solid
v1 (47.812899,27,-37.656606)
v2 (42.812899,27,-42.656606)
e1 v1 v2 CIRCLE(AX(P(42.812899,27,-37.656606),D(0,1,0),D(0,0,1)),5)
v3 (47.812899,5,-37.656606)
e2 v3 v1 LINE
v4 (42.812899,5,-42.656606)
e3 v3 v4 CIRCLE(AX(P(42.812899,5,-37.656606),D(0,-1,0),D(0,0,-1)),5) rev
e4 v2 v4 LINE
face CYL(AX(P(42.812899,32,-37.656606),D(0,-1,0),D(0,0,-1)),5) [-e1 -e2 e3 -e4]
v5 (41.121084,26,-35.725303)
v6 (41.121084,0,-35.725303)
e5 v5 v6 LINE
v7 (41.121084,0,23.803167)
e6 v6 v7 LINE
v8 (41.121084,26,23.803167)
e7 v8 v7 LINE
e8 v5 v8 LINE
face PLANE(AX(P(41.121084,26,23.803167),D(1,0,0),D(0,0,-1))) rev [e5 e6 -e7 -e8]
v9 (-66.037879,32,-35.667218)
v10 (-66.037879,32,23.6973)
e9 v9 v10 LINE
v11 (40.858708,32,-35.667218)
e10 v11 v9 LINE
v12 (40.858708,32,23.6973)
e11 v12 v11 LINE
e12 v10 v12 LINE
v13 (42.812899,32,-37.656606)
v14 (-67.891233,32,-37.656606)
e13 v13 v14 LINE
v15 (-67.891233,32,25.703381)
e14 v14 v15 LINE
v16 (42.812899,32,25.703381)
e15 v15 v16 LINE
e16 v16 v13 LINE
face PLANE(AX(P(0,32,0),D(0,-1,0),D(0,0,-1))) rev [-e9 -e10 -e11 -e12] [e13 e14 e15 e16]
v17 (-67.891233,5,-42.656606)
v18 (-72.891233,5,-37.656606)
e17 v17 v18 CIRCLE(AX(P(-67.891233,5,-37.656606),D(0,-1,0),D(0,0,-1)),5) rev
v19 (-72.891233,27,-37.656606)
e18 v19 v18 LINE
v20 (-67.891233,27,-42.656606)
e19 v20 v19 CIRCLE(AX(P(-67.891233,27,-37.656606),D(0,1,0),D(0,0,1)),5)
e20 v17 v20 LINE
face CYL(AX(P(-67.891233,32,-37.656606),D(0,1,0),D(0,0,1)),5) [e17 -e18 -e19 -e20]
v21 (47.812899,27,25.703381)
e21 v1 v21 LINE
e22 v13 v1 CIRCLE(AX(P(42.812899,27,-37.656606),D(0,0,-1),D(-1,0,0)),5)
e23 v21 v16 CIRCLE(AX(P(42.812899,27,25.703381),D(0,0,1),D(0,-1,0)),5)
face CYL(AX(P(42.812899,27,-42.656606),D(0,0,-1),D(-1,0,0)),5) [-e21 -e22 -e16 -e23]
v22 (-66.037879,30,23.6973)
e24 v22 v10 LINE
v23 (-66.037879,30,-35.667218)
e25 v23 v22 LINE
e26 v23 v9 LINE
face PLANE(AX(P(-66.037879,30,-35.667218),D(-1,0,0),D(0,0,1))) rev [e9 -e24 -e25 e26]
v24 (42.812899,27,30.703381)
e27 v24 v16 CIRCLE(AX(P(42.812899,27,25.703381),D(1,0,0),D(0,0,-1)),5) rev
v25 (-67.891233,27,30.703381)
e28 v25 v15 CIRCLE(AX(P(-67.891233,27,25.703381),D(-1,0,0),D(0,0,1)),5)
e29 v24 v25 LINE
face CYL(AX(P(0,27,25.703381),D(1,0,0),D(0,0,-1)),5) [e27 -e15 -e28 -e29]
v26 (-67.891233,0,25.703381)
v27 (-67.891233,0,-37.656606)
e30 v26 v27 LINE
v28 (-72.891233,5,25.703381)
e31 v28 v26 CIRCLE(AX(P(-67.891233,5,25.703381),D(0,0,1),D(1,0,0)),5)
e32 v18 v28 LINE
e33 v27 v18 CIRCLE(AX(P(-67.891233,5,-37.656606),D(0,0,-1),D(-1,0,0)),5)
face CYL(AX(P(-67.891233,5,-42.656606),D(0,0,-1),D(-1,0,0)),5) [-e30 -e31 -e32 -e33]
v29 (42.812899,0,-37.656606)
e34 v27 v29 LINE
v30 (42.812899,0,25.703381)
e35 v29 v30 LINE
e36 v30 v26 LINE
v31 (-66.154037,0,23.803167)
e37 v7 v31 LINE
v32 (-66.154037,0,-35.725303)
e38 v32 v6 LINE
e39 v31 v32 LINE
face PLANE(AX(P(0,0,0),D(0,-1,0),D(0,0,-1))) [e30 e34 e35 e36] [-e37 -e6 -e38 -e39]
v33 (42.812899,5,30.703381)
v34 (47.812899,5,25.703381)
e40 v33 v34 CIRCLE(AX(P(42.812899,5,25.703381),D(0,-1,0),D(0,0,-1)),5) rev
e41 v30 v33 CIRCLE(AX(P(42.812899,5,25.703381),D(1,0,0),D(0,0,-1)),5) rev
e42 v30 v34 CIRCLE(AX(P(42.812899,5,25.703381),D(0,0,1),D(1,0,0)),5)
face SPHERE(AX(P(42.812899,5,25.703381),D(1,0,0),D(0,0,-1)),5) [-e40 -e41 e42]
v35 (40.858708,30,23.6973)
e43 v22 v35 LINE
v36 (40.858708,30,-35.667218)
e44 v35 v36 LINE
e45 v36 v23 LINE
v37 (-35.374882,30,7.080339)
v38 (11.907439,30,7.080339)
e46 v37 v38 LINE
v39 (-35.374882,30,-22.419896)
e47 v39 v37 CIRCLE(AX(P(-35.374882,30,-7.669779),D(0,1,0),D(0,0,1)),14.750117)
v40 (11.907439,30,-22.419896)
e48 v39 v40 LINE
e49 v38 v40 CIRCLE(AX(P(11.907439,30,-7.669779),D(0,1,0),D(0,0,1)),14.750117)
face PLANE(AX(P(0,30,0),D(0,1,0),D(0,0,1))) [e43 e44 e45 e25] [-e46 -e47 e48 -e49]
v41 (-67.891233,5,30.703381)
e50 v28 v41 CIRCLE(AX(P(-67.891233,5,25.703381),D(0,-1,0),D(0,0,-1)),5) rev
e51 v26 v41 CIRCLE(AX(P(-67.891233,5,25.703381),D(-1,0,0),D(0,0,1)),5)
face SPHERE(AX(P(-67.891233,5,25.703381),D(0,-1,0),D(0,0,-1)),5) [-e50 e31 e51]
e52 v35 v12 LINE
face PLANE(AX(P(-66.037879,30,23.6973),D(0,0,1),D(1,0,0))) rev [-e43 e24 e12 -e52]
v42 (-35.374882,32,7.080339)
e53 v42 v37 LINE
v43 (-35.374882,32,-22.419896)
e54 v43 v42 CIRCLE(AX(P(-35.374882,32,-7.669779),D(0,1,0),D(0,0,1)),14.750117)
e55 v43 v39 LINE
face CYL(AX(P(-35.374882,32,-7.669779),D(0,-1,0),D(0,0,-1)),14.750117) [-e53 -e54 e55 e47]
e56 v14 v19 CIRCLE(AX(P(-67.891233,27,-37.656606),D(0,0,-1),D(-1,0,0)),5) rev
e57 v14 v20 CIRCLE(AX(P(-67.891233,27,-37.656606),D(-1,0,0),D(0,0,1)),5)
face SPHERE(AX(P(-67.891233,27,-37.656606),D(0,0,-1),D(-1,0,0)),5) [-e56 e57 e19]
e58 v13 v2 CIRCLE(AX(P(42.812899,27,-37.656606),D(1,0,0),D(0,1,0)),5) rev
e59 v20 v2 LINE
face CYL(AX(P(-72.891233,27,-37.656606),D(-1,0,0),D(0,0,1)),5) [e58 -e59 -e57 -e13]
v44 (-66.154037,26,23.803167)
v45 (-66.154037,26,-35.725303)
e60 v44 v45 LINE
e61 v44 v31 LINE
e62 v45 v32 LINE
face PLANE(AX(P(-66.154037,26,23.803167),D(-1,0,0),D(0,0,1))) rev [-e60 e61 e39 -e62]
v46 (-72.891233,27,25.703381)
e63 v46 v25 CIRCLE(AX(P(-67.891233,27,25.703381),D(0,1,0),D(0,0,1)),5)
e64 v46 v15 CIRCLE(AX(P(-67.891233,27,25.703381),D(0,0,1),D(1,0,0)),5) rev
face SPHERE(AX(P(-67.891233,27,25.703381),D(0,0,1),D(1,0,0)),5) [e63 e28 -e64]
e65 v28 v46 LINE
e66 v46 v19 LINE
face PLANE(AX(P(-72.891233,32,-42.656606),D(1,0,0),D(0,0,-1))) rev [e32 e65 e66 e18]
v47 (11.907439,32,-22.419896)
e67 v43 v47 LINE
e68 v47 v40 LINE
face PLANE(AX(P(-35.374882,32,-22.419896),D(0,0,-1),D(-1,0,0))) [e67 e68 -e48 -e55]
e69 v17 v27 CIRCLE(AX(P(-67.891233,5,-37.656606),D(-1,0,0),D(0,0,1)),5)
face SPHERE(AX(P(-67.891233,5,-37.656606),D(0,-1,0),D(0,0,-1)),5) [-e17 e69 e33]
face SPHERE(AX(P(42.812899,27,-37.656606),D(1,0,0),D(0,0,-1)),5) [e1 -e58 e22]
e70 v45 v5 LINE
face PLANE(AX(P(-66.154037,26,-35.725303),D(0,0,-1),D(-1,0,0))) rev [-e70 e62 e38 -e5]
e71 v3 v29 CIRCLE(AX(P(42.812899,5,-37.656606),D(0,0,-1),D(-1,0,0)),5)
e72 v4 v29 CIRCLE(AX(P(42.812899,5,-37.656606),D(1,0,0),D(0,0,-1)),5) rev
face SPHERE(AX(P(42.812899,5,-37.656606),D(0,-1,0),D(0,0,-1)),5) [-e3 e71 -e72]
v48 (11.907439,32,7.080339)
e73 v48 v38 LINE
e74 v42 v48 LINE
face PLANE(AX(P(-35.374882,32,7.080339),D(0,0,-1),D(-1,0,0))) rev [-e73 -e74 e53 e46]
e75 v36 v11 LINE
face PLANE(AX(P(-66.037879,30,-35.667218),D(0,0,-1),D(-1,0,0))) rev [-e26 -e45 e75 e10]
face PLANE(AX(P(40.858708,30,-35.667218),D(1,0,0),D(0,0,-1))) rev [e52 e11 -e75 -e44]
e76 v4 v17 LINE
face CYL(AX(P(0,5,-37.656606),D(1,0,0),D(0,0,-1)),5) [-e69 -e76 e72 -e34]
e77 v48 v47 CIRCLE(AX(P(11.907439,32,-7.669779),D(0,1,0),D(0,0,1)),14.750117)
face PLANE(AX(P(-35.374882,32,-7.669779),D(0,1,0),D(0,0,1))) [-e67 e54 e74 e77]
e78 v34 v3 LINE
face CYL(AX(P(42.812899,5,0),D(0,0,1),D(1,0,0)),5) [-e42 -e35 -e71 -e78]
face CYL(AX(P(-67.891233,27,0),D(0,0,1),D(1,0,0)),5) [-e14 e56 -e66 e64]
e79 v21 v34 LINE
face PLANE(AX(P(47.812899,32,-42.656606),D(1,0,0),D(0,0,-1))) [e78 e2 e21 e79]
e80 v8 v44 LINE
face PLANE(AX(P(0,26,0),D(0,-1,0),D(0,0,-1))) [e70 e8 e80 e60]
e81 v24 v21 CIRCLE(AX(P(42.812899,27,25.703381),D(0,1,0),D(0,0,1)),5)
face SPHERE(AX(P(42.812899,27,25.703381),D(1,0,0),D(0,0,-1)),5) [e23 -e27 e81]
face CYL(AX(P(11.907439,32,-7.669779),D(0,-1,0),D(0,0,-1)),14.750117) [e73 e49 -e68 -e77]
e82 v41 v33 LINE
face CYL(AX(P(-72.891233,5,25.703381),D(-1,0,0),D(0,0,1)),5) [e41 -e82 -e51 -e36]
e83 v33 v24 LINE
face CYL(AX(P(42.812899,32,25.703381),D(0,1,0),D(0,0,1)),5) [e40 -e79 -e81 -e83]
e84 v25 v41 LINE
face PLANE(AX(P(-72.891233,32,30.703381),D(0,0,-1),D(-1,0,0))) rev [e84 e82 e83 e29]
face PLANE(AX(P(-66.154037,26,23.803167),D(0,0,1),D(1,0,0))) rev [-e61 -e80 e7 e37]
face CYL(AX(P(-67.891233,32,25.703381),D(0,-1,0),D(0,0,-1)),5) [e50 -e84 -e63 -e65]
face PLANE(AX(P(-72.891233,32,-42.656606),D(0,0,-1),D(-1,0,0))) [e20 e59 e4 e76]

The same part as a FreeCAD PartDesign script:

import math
import FreeCAD as App
import Part
import Sketcher
from FreeCAD import Vector


def add_polygon(sketch, points):
    """Adds a closed chain of lines whose ends are joined by coincident constraints."""
    first, n = sketch.GeometryCount, len(points)
    for a, b in zip(points, points[1:] + points[:1]):
        sketch.addGeometry(Part.LineSegment(App.Vector(*a, 0), App.Vector(*b, 0)), False)
    for i in range(n):
        sketch.addConstraint(Sketcher.Constraint("Coincident", first + i, 2, first + (i + 1) % n, 1))

doc = App.newDocument("Part")
params = doc.addObject("Spreadsheet::Sheet", "Params")
for row, (alias, value) in enumerate([
    ("pad1_length", "32 mm"),
    ("fillet_radius", "5 mm"),
    ("pad2_length", "1 mm"),
    ("pocket1_length", "2 mm"),
    ("pad3_length", "2 mm"),
    ("pocket2_length", "26 mm"),
], start=1):
    params.set(f"A{row}", alias)
    params.set(f"B{row}", "=" + value)
    params.setAlias(f"B{row}", alias)

body = doc.addObject("PartDesign::Body", "Body")

# Sketch on XZ plane
sketch1 = body.newObject("Sketcher::SketchObject", "Sketch")
sketch1.AttachmentSupport = (doc.getObject("XZ_Plane"), [""])
sketch1.MapMode = "FlatFace"
add_polygon(sketch1, [(-73, -43), (-73, 31), (48, 31), (48, -43)])  # lines 0-3
sketch1.addConstraint([
    Sketcher.Constraint("Vertical", 0),
    Sketcher.Constraint("Horizontal", 1),
    Sketcher.Constraint("Vertical", 2),
    Sketcher.Constraint("Horizontal", 3),
    Sketcher.Constraint("DistanceX", 1, 1, 1, 2, 120.704132),
    Sketcher.Constraint("DistanceX", -1, 1, 1, 2, 47.812899),
    Sketcher.Constraint("DistanceY", 0, 1, 0, 2, 73.359987),
    Sketcher.Constraint("DistanceY", -1, 1, 0, 2, 30.703381),
])
pad1 = body.newObject("PartDesign::Pad", "Pad")
pad1.Profile = sketch1
pad1.setExpression("Length", "Params.pad1_length")
pad1.Reversed = True
doc.recompute()

fillet = body.newObject("PartDesign::Fillet", "Fillet")
fillet.Base = (pad1, ["Edge1"])
fillet.UseAllEdges = True
fillet.setExpression("Radius", "Params.fillet_radius")

# Sketch on XZ plane
sketch2 = body.newObject("Sketcher::SketchObject", "Sketch001")
sketch2.AttachmentSupport = (doc.getObject("XZ_Plane"), [""])
sketch2.MapMode = "FlatFace"
sketch2.AttachmentOffset = App.Placement(Vector(0, 0, -32), App.Rotation())
add_polygon(sketch2, [(-64, -35), (-64, 22), (39, 22), (39, -35)])  # lines 0-3
sketch2.addConstraint([
    Sketcher.Constraint("Vertical", 0),
    Sketcher.Constraint("Horizontal", 1),
    Sketcher.Constraint("Vertical", 2),
    Sketcher.Constraint("Horizontal", 3),
    Sketcher.Constraint("DistanceX", 1, 1, 1, 2, 103.308329),
    Sketcher.Constraint("DistanceY", 0, 1, 0, 2, 57.020562),
    Sketcher.Constraint("DistanceX", 0, 2, -1, 1, 64.343243),
    Sketcher.Constraint("DistanceY", -1, 1, 0, 2, 22.415495),
])
pad2 = body.newObject("PartDesign::Pad", "Pad001")
pad2.Profile = sketch2
pad2.setExpression("Length", "Params.pad2_length")

# Sketch on XZ plane
sketch3 = body.newObject("Sketcher::SketchObject", "Sketch002")
sketch3.AttachmentSupport = (doc.getObject("XZ_Plane"), [""])
sketch3.MapMode = "FlatFace"
sketch3.AttachmentOffset = App.Placement(Vector(0, 0, -32), App.Rotation())
add_polygon(sketch3, [(-66, -36), (-66, 24), (41, 24), (41, -36)])  # lines 0-3
sketch3.addConstraint([
    Sketcher.Constraint("Vertical", 0),
    Sketcher.Constraint("Horizontal", 1),
    Sketcher.Constraint("Vertical", 2),
    Sketcher.Constraint("Horizontal", 3),
    Sketcher.Constraint("DistanceY", 0, 1, 0, 2, 59.364519),
    Sketcher.Constraint("DistanceY", -1, 1, 0, 2, 23.6973),
    Sketcher.Constraint("DistanceX", 1, 1, 1, 2, 106.896587),
    Sketcher.Constraint("DistanceX", 0, 2, -1, 1, 66.037879),
])
pocket1 = body.newObject("PartDesign::Pocket", "Pocket")
pocket1.Profile = sketch3
pocket1.setExpression("Length", "Params.pocket1_length")
pocket1.Reversed = True

# Sketch on XZ plane
sketch4 = body.newObject("Sketcher::SketchObject", "Sketch003")
sketch4.AttachmentSupport = (doc.getObject("XZ_Plane"), [""])
sketch4.MapMode = "FlatFace"
sketch4.AttachmentOffset = App.Placement(Vector(0, 0, -30), App.Rotation())
sketch4.addGeometry([
    Part.LineSegment(Vector(12, -22, 0), Vector(-35, -22, 0)),
    Part.ArcOfCircle(Part.Circle(Vector(-35, -8, 0), Vector(0, 0, 1), 15), math.radians(90), math.radians(270)),
    Part.LineSegment(Vector(-35, 7, 0), Vector(12, 7, 0)),
    Part.ArcOfCircle(Part.Circle(Vector(12, -8, 0), Vector(0, 0, 1), 15), math.radians(-90), math.radians(90)),
], False)
sketch4.addConstraint([
    Sketcher.Constraint("Tangent", 0, 2, 1, 2),
    Sketcher.Constraint("Tangent", 1, 1, 2, 1),
    Sketcher.Constraint("Tangent", 2, 2, 3, 2),
    Sketcher.Constraint("Tangent", 3, 1, 0, 1),
    Sketcher.Constraint("Horizontal", 0),
    Sketcher.Constraint("Horizontal", 2),
    Sketcher.Constraint("Radius", 1, 14.750117),
    Sketcher.Constraint("DistanceX", 0, 2, 0, 1, 47.282321),
    Sketcher.Constraint("DistanceX", 1, 3, -1, 1, 35.374882),
    Sketcher.Constraint("DistanceY", 1, 3, -1, 1, 7.669779),
])
pad3 = body.newObject("PartDesign::Pad", "Pad002")
pad3.Profile = sketch4
pad3.setExpression("Length", "Params.pad3_length")
pad3.Reversed = True

# Sketch on XZ plane
sketch5 = body.newObject("Sketcher::SketchObject", "Sketch004")
sketch5.AttachmentSupport = (doc.getObject("XZ_Plane"), [""])
sketch5.MapMode = "FlatFace"
add_polygon(sketch5, [(-66, 24), (-66, -36), (41, -36), (41, 24)])  # lines 0-3
sketch5.addConstraint([
    Sketcher.Constraint("Vertical", 0),
    Sketcher.Constraint("Horizontal", 1),
    Sketcher.Constraint("Vertical", 2),
    Sketcher.Constraint("Horizontal", 3),
    Sketcher.Constraint("DistanceX", 1, 1, 1, 2, 107.275121),
    Sketcher.Constraint("DistanceY", 0, 2, 0, 1, 59.528469),
    Sketcher.Constraint("DistanceX", 0, 2, -1, 1, 66.154037),
    Sketcher.Constraint("DistanceY", 0, 2, -1, 1, 35.725303),
])
pocket2 = body.newObject("PartDesign::Pocket", "Pocket001")
pocket2.Profile = sketch5
pocket2.setExpression("Length", "Params.pocket2_length")

doc.recompute()
